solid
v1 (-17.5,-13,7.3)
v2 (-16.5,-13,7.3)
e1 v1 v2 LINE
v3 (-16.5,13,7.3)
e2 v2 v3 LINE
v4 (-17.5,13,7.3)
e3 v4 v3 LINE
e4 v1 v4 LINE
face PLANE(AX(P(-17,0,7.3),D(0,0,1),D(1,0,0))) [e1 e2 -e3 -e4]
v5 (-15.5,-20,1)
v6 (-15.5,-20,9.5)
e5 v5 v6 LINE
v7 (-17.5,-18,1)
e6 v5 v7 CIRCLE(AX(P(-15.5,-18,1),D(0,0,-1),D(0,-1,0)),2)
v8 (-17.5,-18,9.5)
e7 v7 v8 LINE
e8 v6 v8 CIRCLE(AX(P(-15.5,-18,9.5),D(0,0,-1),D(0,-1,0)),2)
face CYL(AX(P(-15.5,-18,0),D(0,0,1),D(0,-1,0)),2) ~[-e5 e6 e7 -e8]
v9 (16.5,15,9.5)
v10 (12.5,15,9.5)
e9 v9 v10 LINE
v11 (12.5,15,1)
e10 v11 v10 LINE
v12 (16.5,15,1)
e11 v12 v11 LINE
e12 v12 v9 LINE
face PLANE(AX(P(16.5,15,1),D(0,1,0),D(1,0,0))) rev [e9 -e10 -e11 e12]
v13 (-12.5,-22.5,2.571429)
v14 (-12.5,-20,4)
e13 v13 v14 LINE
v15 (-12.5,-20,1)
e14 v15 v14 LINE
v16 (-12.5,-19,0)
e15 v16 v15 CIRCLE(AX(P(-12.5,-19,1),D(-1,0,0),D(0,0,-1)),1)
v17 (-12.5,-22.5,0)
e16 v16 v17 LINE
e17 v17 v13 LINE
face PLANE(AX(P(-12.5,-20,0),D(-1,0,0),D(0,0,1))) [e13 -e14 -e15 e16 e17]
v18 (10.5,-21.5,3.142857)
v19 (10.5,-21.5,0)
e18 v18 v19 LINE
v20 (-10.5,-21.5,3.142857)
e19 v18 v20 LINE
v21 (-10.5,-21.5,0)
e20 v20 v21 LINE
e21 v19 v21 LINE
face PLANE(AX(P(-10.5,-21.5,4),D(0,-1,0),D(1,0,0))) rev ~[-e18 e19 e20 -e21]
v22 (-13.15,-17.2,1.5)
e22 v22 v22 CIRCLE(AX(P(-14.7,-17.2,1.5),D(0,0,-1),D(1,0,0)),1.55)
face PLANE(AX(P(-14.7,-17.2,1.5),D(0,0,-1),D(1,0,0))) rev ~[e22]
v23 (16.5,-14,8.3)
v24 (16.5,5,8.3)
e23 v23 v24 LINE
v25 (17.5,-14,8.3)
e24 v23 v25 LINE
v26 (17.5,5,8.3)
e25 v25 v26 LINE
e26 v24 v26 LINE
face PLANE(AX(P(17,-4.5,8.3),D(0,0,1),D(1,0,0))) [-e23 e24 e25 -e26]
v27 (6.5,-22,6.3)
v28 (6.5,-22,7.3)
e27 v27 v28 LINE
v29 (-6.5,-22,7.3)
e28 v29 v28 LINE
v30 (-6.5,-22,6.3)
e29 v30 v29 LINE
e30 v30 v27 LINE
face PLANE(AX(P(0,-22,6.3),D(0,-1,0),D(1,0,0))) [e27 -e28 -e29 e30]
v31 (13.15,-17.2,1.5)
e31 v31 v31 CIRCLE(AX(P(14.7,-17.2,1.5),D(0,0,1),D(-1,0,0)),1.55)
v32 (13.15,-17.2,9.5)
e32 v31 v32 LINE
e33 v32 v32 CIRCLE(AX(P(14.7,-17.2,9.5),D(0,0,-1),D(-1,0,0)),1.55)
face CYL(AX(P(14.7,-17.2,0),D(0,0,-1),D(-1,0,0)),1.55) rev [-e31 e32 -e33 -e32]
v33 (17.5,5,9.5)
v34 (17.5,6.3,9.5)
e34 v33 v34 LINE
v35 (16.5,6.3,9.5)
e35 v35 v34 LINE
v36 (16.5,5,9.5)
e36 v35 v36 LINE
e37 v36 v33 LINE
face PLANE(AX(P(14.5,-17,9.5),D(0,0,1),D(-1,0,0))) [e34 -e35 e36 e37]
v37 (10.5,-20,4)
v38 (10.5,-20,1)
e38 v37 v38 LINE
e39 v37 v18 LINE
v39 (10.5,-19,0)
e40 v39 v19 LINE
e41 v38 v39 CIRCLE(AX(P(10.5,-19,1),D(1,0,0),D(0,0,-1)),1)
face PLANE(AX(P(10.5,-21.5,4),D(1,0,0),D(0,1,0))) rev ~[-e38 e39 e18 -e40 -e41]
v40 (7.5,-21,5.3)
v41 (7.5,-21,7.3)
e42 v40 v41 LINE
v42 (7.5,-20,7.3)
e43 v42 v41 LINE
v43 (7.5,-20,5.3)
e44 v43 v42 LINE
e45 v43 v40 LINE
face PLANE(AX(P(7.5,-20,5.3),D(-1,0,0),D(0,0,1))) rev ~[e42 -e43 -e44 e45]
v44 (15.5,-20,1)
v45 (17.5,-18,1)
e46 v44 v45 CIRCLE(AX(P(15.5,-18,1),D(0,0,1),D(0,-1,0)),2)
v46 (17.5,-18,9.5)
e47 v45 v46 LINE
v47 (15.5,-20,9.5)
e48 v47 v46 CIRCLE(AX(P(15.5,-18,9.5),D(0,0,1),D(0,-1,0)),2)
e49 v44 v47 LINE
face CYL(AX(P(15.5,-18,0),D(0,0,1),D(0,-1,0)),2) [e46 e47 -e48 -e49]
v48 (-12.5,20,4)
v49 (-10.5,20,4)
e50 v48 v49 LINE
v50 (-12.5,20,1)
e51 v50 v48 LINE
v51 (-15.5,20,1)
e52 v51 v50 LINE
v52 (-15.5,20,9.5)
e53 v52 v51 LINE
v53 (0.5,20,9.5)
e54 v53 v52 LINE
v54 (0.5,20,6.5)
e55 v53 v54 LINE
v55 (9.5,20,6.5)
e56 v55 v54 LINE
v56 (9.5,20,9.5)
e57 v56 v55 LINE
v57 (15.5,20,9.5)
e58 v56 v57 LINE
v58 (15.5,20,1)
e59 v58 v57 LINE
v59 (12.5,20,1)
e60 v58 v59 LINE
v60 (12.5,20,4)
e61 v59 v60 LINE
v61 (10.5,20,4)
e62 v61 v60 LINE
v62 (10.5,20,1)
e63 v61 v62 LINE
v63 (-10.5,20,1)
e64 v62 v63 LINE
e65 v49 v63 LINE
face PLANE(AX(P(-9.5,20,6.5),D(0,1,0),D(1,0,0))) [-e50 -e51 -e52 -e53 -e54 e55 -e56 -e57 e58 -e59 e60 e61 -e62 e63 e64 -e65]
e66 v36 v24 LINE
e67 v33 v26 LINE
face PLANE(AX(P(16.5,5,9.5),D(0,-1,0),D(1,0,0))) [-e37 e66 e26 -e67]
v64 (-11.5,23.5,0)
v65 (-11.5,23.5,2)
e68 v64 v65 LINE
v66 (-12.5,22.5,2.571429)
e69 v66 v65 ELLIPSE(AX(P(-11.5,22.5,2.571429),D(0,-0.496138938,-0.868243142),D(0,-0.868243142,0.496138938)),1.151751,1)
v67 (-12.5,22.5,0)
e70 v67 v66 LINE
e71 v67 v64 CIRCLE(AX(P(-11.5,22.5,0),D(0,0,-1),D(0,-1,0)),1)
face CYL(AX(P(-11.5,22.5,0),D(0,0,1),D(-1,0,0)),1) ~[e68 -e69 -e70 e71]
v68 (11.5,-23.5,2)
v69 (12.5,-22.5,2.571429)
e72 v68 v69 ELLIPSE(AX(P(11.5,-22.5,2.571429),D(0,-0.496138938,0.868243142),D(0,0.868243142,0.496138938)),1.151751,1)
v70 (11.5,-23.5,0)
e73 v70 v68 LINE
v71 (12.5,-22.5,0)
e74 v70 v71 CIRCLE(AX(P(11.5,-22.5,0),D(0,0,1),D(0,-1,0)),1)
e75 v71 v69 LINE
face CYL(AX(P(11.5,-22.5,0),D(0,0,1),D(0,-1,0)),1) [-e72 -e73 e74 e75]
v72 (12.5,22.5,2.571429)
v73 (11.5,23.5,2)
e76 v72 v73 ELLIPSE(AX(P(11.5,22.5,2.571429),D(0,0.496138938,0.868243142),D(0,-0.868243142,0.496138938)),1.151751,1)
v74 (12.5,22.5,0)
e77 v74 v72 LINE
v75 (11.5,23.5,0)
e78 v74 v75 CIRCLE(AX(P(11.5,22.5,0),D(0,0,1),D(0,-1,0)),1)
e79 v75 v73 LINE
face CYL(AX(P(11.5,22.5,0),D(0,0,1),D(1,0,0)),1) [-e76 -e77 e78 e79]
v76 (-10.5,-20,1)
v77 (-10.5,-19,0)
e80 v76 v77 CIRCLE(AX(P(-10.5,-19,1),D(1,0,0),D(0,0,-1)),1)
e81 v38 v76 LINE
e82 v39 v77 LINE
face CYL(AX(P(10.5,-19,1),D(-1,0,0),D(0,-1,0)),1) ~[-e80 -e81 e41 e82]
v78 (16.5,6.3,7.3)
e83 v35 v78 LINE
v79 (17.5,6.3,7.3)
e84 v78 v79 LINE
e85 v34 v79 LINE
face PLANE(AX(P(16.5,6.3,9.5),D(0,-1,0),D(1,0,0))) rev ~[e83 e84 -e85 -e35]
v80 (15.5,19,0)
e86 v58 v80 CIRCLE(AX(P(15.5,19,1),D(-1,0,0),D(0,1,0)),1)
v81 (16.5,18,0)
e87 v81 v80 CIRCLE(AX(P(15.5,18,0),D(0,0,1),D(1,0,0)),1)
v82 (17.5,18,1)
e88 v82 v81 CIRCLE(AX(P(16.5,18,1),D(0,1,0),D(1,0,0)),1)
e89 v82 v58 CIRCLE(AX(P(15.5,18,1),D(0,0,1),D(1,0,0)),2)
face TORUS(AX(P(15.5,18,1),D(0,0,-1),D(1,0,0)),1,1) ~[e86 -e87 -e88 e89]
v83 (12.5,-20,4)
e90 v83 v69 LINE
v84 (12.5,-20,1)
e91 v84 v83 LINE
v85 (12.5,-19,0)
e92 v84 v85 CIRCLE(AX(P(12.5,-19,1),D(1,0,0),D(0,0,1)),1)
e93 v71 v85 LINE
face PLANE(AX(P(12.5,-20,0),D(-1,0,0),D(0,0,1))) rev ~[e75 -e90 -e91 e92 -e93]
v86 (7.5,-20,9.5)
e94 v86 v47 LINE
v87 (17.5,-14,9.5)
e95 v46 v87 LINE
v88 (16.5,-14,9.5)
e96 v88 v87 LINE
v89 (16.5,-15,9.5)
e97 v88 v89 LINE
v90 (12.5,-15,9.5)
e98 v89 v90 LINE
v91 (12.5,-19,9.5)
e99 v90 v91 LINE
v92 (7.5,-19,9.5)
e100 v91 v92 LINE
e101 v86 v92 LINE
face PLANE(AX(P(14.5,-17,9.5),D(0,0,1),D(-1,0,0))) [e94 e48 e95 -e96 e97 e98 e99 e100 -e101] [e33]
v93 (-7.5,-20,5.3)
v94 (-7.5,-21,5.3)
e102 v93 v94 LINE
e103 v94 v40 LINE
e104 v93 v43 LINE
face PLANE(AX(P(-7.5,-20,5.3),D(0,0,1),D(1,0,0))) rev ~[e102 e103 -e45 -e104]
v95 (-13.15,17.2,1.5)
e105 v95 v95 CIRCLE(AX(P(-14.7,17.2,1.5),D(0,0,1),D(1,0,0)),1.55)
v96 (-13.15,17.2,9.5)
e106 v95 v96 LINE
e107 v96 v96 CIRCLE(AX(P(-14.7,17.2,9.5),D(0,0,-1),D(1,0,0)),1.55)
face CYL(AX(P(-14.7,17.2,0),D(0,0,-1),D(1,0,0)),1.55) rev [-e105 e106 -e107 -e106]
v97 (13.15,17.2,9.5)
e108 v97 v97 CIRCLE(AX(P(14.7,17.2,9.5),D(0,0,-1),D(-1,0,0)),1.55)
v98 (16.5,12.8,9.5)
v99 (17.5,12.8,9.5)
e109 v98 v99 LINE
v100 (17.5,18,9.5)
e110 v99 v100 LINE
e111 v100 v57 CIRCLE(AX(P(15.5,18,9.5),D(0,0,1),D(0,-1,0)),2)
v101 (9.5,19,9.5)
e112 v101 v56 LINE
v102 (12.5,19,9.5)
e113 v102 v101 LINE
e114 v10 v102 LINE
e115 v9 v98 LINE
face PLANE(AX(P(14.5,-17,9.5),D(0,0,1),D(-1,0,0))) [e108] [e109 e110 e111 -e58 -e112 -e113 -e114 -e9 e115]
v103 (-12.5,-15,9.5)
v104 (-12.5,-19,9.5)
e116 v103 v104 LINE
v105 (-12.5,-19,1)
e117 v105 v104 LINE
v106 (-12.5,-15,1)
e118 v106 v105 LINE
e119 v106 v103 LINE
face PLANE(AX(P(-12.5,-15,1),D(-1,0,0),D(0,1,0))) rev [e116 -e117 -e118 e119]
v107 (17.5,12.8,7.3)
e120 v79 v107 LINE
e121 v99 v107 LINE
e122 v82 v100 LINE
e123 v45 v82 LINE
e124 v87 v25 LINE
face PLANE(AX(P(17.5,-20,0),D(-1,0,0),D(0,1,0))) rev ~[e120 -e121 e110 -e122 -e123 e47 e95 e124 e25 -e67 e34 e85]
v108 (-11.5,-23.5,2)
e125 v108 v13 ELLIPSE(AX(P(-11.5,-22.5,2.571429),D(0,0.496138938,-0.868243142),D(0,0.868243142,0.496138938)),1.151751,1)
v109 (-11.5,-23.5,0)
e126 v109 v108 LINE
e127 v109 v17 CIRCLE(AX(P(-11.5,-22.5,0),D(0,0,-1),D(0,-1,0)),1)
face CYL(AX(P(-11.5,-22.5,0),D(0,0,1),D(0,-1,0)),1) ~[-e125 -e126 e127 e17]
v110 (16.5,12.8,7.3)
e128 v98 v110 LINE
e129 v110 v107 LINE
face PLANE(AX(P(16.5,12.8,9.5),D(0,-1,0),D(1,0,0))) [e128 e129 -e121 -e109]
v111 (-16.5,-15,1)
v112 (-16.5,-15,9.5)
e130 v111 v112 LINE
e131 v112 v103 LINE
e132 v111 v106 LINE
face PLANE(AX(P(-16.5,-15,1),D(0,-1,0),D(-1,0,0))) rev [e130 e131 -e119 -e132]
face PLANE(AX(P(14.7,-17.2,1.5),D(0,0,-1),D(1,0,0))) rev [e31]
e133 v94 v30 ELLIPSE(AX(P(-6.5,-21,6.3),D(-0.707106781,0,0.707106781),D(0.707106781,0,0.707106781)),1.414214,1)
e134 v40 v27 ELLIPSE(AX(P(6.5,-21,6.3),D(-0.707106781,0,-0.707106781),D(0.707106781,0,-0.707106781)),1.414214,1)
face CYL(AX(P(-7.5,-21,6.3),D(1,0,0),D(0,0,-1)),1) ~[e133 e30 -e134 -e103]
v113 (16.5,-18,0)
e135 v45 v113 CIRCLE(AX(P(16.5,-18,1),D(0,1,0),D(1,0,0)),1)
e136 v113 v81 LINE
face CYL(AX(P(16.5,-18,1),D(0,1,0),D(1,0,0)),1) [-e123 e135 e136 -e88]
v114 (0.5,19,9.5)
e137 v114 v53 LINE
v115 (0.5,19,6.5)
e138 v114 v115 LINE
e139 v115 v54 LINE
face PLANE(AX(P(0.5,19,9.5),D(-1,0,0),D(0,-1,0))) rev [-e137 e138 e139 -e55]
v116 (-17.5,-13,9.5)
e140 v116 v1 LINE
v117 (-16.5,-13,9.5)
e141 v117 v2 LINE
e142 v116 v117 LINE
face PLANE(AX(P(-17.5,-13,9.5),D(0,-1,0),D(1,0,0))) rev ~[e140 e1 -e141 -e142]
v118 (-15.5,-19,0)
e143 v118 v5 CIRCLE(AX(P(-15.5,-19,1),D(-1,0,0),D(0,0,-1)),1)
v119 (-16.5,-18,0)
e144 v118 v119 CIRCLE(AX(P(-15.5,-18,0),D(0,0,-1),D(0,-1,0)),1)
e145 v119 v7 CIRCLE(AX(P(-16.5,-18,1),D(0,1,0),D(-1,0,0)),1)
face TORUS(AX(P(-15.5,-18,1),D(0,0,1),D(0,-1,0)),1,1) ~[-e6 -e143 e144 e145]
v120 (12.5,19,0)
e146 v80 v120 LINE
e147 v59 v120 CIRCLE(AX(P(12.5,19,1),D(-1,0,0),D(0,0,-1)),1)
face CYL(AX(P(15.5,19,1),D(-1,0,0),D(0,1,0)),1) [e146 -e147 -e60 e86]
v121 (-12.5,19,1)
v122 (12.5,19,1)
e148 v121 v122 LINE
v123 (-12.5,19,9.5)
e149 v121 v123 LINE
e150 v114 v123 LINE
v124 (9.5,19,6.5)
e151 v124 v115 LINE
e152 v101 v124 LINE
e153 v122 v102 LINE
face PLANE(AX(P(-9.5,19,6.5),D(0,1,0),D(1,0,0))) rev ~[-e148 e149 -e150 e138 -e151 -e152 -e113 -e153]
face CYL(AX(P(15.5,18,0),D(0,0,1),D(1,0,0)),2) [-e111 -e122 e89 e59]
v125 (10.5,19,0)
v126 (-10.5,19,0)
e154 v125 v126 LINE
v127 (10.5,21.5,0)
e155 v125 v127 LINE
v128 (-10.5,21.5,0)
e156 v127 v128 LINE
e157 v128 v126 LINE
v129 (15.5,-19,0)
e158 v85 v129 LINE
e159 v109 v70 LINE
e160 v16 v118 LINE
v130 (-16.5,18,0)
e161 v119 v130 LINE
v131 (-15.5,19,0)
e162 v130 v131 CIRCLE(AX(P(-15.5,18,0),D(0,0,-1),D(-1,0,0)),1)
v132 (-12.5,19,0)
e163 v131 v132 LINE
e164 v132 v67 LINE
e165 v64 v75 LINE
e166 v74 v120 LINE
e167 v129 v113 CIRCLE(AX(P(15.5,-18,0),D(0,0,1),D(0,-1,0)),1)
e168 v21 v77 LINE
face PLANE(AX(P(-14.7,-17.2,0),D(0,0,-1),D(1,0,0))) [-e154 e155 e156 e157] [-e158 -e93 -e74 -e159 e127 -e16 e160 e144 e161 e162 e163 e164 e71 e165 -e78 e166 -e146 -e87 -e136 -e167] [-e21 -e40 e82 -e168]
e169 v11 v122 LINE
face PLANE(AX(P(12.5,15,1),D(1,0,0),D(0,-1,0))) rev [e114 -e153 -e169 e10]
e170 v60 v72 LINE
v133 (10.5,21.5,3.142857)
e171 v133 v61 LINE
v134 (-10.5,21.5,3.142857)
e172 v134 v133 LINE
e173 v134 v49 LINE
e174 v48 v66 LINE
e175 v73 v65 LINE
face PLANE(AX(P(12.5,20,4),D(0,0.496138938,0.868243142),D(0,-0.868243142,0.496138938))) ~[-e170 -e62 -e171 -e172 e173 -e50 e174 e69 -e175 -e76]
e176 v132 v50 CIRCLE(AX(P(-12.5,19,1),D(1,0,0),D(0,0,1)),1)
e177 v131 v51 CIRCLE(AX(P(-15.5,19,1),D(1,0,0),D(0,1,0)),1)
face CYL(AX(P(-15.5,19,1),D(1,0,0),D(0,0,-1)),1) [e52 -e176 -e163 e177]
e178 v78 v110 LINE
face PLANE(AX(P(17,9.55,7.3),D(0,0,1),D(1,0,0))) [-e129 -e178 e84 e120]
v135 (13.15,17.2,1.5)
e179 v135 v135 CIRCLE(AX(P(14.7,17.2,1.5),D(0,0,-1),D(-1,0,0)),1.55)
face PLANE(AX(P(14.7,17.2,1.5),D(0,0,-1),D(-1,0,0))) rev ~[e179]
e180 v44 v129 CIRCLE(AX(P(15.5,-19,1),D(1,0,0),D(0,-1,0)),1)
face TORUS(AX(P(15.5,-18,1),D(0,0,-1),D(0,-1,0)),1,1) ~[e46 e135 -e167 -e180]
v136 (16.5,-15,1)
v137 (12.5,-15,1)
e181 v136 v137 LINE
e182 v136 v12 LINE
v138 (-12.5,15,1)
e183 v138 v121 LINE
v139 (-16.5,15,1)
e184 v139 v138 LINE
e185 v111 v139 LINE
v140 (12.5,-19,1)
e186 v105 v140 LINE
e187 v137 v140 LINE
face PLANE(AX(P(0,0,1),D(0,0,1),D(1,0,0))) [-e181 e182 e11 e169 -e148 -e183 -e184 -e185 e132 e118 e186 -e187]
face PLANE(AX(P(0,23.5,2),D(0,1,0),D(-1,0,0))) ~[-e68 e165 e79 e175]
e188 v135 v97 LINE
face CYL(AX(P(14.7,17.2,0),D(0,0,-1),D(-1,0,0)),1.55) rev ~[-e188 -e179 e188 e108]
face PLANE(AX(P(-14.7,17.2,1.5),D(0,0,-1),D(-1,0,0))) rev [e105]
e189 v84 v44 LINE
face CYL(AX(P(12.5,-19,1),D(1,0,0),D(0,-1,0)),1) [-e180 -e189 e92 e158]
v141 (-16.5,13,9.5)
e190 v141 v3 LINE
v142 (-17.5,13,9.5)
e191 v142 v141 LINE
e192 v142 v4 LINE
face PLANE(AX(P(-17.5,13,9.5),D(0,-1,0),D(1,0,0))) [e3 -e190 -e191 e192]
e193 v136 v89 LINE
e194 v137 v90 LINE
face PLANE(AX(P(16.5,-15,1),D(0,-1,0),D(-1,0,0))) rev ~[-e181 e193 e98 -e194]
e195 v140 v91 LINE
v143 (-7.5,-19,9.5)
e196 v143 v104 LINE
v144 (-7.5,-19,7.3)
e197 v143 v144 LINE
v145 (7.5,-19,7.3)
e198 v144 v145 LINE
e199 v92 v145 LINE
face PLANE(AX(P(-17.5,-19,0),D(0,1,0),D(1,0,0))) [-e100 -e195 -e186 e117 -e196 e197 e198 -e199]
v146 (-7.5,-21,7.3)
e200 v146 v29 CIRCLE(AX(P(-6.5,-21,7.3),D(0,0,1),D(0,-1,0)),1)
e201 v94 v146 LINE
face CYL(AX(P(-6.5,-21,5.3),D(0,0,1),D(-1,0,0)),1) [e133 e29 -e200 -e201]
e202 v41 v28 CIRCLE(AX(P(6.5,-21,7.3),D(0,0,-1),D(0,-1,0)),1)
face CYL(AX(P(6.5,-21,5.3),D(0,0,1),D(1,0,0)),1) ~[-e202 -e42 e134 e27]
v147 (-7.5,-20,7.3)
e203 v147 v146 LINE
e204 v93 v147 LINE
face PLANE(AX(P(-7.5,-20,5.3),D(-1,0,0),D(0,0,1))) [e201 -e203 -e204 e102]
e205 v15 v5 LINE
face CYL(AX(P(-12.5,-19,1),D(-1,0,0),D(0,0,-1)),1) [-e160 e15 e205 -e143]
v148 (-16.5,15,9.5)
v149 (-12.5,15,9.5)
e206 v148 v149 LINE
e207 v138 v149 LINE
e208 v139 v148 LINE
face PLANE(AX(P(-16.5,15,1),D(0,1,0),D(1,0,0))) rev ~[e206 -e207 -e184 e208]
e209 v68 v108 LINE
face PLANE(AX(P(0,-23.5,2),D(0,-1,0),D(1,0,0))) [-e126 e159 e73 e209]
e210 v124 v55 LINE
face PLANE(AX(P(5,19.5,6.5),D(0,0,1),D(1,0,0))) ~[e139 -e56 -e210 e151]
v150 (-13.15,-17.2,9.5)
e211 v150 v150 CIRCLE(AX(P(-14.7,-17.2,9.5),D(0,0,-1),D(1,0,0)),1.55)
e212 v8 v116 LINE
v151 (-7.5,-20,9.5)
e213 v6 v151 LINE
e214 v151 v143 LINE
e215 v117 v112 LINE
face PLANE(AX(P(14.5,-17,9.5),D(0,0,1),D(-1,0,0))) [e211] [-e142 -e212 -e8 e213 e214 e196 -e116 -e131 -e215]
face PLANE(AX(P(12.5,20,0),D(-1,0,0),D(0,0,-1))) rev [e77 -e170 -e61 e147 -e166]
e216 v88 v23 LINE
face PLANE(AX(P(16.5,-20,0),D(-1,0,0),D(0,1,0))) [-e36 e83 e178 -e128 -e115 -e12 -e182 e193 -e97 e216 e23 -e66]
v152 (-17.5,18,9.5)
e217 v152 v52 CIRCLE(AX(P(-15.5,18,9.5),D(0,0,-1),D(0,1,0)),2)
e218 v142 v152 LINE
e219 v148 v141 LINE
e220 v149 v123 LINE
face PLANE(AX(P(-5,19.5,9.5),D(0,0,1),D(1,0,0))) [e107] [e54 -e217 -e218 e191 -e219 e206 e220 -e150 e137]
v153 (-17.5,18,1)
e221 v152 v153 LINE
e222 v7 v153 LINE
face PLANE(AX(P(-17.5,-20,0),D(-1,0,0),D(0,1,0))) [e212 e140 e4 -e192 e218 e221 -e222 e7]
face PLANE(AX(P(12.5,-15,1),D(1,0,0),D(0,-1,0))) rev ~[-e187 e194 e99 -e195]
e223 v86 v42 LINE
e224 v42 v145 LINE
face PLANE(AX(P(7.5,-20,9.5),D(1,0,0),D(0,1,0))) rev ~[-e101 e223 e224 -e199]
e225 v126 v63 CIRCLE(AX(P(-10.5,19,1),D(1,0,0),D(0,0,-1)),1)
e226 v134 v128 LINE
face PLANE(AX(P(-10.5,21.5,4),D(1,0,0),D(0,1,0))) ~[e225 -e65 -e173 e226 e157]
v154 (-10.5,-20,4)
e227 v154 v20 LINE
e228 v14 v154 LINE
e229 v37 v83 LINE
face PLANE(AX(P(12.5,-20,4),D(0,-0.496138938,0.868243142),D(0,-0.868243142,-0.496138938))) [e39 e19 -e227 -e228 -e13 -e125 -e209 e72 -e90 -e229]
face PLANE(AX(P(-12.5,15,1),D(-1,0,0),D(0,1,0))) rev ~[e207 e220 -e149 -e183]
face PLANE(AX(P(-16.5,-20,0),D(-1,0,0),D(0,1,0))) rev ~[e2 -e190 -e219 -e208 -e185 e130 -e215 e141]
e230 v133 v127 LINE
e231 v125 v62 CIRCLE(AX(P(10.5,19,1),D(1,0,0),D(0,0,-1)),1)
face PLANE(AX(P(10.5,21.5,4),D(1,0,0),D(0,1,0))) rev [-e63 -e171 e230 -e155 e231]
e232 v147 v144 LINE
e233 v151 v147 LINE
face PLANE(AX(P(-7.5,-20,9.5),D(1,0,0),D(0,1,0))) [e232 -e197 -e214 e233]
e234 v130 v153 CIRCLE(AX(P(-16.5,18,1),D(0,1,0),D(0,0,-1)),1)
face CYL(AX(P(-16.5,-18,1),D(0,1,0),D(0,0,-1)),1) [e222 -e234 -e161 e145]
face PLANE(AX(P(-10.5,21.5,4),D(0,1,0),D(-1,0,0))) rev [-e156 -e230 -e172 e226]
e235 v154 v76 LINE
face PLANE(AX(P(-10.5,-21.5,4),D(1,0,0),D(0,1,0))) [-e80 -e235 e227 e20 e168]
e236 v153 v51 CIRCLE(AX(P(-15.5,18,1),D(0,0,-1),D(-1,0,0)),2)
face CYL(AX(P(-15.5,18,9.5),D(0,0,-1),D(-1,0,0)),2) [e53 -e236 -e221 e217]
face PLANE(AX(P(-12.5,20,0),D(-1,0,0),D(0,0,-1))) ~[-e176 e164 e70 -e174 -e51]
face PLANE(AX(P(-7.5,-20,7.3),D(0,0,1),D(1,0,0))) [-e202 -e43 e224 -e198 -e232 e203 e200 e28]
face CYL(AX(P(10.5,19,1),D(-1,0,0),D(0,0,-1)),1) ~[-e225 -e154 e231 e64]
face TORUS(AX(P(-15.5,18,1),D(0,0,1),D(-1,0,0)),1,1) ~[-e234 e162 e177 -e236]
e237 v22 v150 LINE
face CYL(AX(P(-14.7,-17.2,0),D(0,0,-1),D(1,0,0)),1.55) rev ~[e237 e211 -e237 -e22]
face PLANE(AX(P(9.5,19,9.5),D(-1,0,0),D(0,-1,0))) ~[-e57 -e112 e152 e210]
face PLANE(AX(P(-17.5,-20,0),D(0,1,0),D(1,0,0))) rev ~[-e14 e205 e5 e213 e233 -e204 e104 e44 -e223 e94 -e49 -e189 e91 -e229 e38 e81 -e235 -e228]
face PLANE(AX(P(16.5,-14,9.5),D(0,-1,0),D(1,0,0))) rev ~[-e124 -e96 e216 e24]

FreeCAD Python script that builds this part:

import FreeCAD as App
import Part
import Sketcher


def edges_at(feature, points):
    """Names of the edges that pass closest to the given points."""
    edges = feature.Shape.Edges
    near = lambda p: min(range(len(edges)), key=lambda i: edges[i].distToShape(Part.Vertex(*p))[0])
    return sorted({f"Edge{near(p) + 1}" for p in points})


def faces_at(feature, points):
    """Names of the faces that lie closest to the given points."""
    faces = feature.Shape.Faces
    near = lambda p: min(range(len(faces)), key=lambda i: faces[i].distToShape(Part.Vertex(*p))[0])
    return sorted({f"Face{near(p) + 1}" for p in points})

doc = App.newDocument("Part")
body = doc.addObject("PartDesign::Body", "Body")

sketch1 = body.newObject("Sketcher::SketchObject", "Sketch")
sketch1.AttachmentSupport = (doc.getObject("XY_Plane"), [""])
sketch1.MapMode = "FlatFace"
sketch1.addGeometry([
    Part.LineSegment(App.Vector(-18, 20, 0), App.Vector(-18, -20, 0)),
    Part.LineSegment(App.Vector(-18, -20, 0), App.Vector(18, -20, 0)),
    Part.LineSegment(App.Vector(18, -20, 0), App.Vector(18, 20, 0)),
    Part.LineSegment(App.Vector(18, 20, 0), App.Vector(-18, 20, 0)),
], False)
sketch1.addConstraint([
    Sketcher.Constraint("Coincident", 0, 2, 1, 1),
    Sketcher.Constraint("Coincident", 1, 2, 2, 1),
    Sketcher.Constraint("Coincident", 2, 2, 3, 1),
    Sketcher.Constraint("Coincident", 3, 2, 0, 1),
    Sketcher.Constraint("Vertical", 0),
    Sketcher.Constraint("Horizontal", 1),
    Sketcher.Constraint("Vertical", 2),
    Sketcher.Constraint("Horizontal", 3),
    Sketcher.Constraint("Symmetric", 0, 2, 2, 2, -1, 1),
    Sketcher.Constraint("DistanceX", 1, 1, 1, 2, 35.0),
    Sketcher.Constraint("DistanceY", 0, 2, 0, 1, 40.0),
])
pad1 = body.newObject("PartDesign::Pad", "Pad")
pad1.Profile = sketch1
pad1.Length = 9.5
doc.recompute()

thickness = body.newObject("PartDesign::Thickness", "Thickness")
thickness.Base = (pad1, faces_at(pad1, [(0, 0, 9.5)]))
thickness.Value = 1
thickness.Reversed = True
thickness.Join = "Intersection"

sketch2 = body.newObject("Sketcher::SketchObject", "Sketch001")
sketch2.AttachmentSupport = (doc.getObject("XY_Plane"), [""])
sketch2.MapMode = "FlatFace"
sketch2.AttachmentOffset = App.Placement(App.Vector(0, 0, 1), App.Rotation())
sketch2.addGeometry([
    Part.LineSegment(App.Vector(-16.5, 19, 0), App.Vector(-16.5, 15, 0)),
    Part.LineSegment(App.Vector(-16.5, 15, 0), App.Vector(-12.5, 15, 0)),
    Part.LineSegment(App.Vector(-12.5, 15, 0), App.Vector(-12.5, 19, 0)),
    Part.LineSegment(App.Vector(-12.5, 19, 0), App.Vector(-16.5, 19, 0)),
], False)
sketch2.addConstraint([
    Sketcher.Constraint("Coincident", 0, 2, 1, 1),
    Sketcher.Constraint("Coincident", 1, 2, 2, 1),
    Sketcher.Constraint("Coincident", 2, 2, 3, 1),
    Sketcher.Constraint("Coincident", 3, 2, 0, 1),
    Sketcher.Constraint("Vertical", 0),
    Sketcher.Constraint("Horizontal", 1),
    Sketcher.Constraint("Vertical", 2),
    Sketcher.Constraint("Horizontal", 3),
    Sketcher.Constraint("Equal", 3, 0),
    Sketcher.Constraint("DistanceX", 1, 1, 1, 2, 4.0),
    Sketcher.Constraint("DistanceY", -1, 1, 0, 2, 15.0),
    Sketcher.Constraint("DistanceX", 0, 2, -1, 1, 16.5),
])
pad2 = body.newObject("PartDesign::Pad", "Pad001")
pad2.Profile = sketch2
pad2.Length = 8.5
doc.recompute()

mirrored = body.newObject("PartDesign::Mirrored", "Mirrored")
mirrored.Originals = [pad2]
mirrored.MirrorPlane = (doc.getObject("XZ_Plane"), [""])
body.Tip = mirrored
doc.recompute()

mirrored2 = body.newObject("PartDesign::Mirrored", "Mirrored001")
mirrored2.Originals = [pad2]
mirrored2.MirrorPlane = (doc.getObject("YZ_Plane"), [""])
body.Tip = mirrored2

sketch3 = body.newObject("Sketcher::SketchObject", "Sketch002")
sketch3.AttachmentSupport = (doc.getObject("XY_Plane"), [""])
sketch3.MapMode = "FlatFace"
sketch3.AttachmentOffset = App.Placement(App.Vector(0, 0, 1), App.Rotation())
sketch3.addGeometry([
    Part.LineSegment(App.Vector(16.5, -19, 0), App.Vector(16.5, -15, 0)),
    Part.LineSegment(App.Vector(16.5, -15, 0), App.Vector(12.5, -15, 0)),
    Part.LineSegment(App.Vector(12.5, -15, 0), App.Vector(12.5, -19, 0)),
    Part.LineSegment(App.Vector(12.5, -19, 0), App.Vector(16.5, -19, 0)),
], False)
sketch3.addConstraint([
    Sketcher.Constraint("Coincident", 0, 2, 1, 1),
    Sketcher.Constraint("Coincident", 1, 2, 2, 1),
    Sketcher.Constraint("Coincident", 2, 2, 3, 1),
    Sketcher.Constraint("Coincident", 3, 2, 0, 1),
    Sketcher.Constraint("Vertical", 0),
    Sketcher.Constraint("Horizontal", 1),
    Sketcher.Constraint("Vertical", 2),
    Sketcher.Constraint("Horizontal", 3),
    Sketcher.Constraint("Equal", 3, 0),
    Sketcher.Constraint("DistanceX", 1, 2, 1, 1, 4.0),
    Sketcher.Constraint("DistanceY", 0, 2, -1, 1, 15.0),
    Sketcher.Constraint("DistanceX", -1, 1, 0, 2, 16.5),
])
pad3 = body.newObject("PartDesign::Pad", "Pad002")
pad3.Profile = sketch3
pad3.Length = 8.5

sketch4 = body.newObject("Sketcher::SketchObject", "Sketch003")
sketch4.AttachmentSupport = (doc.getObject("XY_Plane"), [""])
sketch4.MapMode = "FlatFace"
sketch4.addGeometry(Part.Circle(App.Vector(14.7, 17.2, 0), App.Vector(0, 0, 1), 1.6), False)
sketch4.addConstraint([
    Sketcher.Constraint("Diameter", 0, 3.1),
    Sketcher.Constraint("DistanceX", -1, 1, 0, 3, 14.7),
    Sketcher.Constraint("DistanceY", -1, 1, 0, 3, 17.2),
])
pocket1 = body.newObject("PartDesign::Pocket", "Pocket")
pocket1.Profile = sketch4
pocket1.Length = 12
pocket1.Reversed = True
doc.recompute()

mirrored3 = body.newObject("PartDesign::Mirrored", "Mirrored002")
mirrored3.Originals = [pocket1]
mirrored3.MirrorPlane = (doc.getObject("XZ_Plane"), [""])
body.Tip = mirrored3
doc.recompute()

mirrored4 = body.newObject("PartDesign::Mirrored", "Mirrored003")
mirrored4.Originals = [pocket1]
mirrored4.MirrorPlane = (doc.getObject("YZ_Plane"), [""])
body.Tip = mirrored4

sketch5 = body.newObject("Sketcher::SketchObject", "Sketch004")
sketch5.AttachmentSupport = (doc.getObject("XY_Plane"), [""])
sketch5.MapMode = "FlatFace"
sketch5.addGeometry(Part.Circle(App.Vector(-14.7, -17.2, 0), App.Vector(0, 0, 1), 1.6), False)
sketch5.addConstraint([
    Sketcher.Constraint("Diameter", 0, 3.1),
    Sketcher.Constraint("DistanceX", 0, 3, -1, 1, 14.7),
    Sketcher.Constraint("DistanceY", 0, 3, -1, 1, 17.2),
])
pocket2 = body.newObject("PartDesign::Pocket", "Pocket001")
pocket2.Profile = sketch5
pocket2.Length = 12
pocket2.Reversed = True

sketch6 = body.newObject("Sketcher::SketchObject", "Sketch005")
sketch6.AttachmentSupport = (doc.getObject("XY_Plane"), [""])
sketch6.MapMode = "FlatFace"
sketch6.addGeometry(Part.Circle(App.Vector(14.7, 17.2, 0), App.Vector(0, 0, 1), 1.6), False)
sketch6.addConstraint([
    Sketcher.Constraint("Diameter", 0, 3.1),
    Sketcher.Constraint("DistanceX", -1, 1, 0, 3, 14.7),
    Sketcher.Constraint("DistanceY", -1, 1, 0, 3, 17.2),
])
pad4 = body.newObject("PartDesign::Pad", "Pad003")
pad4.Profile = sketch6
pad4.Length = 1.5
doc.recompute()

mirrored5 = body.newObject("PartDesign::Mirrored", "Mirrored004")
mirrored5.Originals = [pad4]
mirrored5.MirrorPlane = (doc.getObject("XZ_Plane"), [""])
body.Tip = mirrored5
doc.recompute()

mirrored6 = body.newObject("PartDesign::Mirrored", "Mirrored005")
mirrored6.Originals = [pad4]
mirrored6.MirrorPlane = (doc.getObject("YZ_Plane"), [""])
body.Tip = mirrored6

sketch7 = body.newObject("Sketcher::SketchObject", "Sketch006")
sketch7.AttachmentSupport = (doc.getObject("XY_Plane"), [""])
sketch7.MapMode = "FlatFace"
sketch7.addGeometry(Part.Circle(App.Vector(-14.7, -17.2, 0), App.Vector(0, 0, 1), 1.6), False)
sketch7.addConstraint([
    Sketcher.Constraint("Diameter", 0, 3.1),
    Sketcher.Constraint("DistanceX", 0, 3, -1, 1, 14.7),
    Sketcher.Constraint("DistanceY", 0, 3, -1, 1, 17.2),
])
pad5 = body.newObject("PartDesign::Pad", "Pad004")
pad5.Profile = sketch7
pad5.Length = 1.5

sketch8 = body.newObject("Sketcher::SketchObject", "Sketch007")
sketch8.AttachmentSupport = (doc.getObject("XY_Plane"), [""])
sketch8.MapMode = "FlatFace"
sketch8.AttachmentOffset = App.Placement(App.Vector(0, 0, 9.5), App.Rotation())
sketch8.addGeometry([
    Part.LineSegment(App.Vector(-9.5, 20, 0), App.Vector(-9.5, 19, 0)),
    Part.LineSegment(App.Vector(-9.5, 19, 0), App.Vector(-0.5, 19, 0)),
    Part.LineSegment(App.Vector(-0.5, 19, 0), App.Vector(-0.5, 20, 0)),
    Part.LineSegment(App.Vector(-0.5, 20, 0), App.Vector(-9.5, 20, 0)),
], False)
sketch8.addConstraint([
    Sketcher.Constraint("Coincident", 0, 2, 1, 1),
    Sketcher.Constraint("Coincident", 1, 2, 2, 1),
    Sketcher.Constraint("Coincident", 2, 2, 3, 1),
    Sketcher.Constraint("Coincident", 3, 2, 0, 1),
    Sketcher.Constraint("Vertical", 0),
    Sketcher.Constraint("Horizontal", 1),
    Sketcher.Constraint("Vertical", 2),
    Sketcher.Constraint("Horizontal", 3),
    Sketcher.Constraint("DistanceX", 1, 1, 1, 2, 9.0),
    Sketcher.Constraint("DistanceY", 0, 2, 0, 1, 1.0),
    Sketcher.Constraint("DistanceY", -1, 1, 0, 2, 19.0),
    Sketcher.Constraint("DistanceX", 0, 2, -1, 1, 9.5),
])
pocket3 = body.newObject("PartDesign::Pocket", "Pocket002")
pocket3.Profile = sketch8
pocket3.Length = 3

sketch9 = body.newObject("Sketcher::SketchObject", "Sketch008")
sketch9.AttachmentSupport = (doc.getObject("XY_Plane"), [""])
sketch9.MapMode = "FlatFace"
sketch9.AttachmentOffset = App.Placement(App.Vector(0, 0, 9.5), App.Rotation())
sketch9.addGeometry([
    Part.LineSegment(App.Vector(-17.5, 13, 0), App.Vector(-17.5, -13, 0)),
    Part.LineSegment(App.Vector(-17.5, -13, 0), App.Vector(-16.5, -13, 0)),
    Part.LineSegment(App.Vector(-16.5, -13, 0), App.Vector(-16.5, 13, 0)),
    Part.LineSegment(App.Vector(-16.5, 13, 0), App.Vector(-17.5, 13, 0)),
], False)
sketch9.addConstraint([
    Sketcher.Constraint("Coincident", 0, 2, 1, 1),
    Sketcher.Constraint("Coincident", 1, 2, 2, 1),
    Sketcher.Constraint("Coincident", 2, 2, 3, 1),
    Sketcher.Constraint("Coincident", 3, 2, 0, 1),
    Sketcher.Constraint("Vertical", 0),
    Sketcher.Constraint("Horizontal", 1),
    Sketcher.Constraint("Vertical", 2),
    Sketcher.Constraint("Horizontal", 3),
    Sketcher.Constraint("DistanceX", 1, 1, 1, 2, 1.0),
    Sketcher.Constraint("DistanceY", 0, 2, 0, 1, 26.0),
    Sketcher.Constraint("DistanceY", 0, 2, -1, 1, 13.0),
    Sketcher.Constraint("DistanceX", 0, 2, -1, 1, 17.5),
])
pocket4 = body.newObject("PartDesign::Pocket", "Pocket003")
pocket4.Profile = sketch9
pocket4.Length = 2.2

sketch10 = body.newObject("Sketcher::SketchObject", "Sketch009")
sketch10.AttachmentSupport = (doc.getObject("XY_Plane"), [""])
sketch10.MapMode = "FlatFace"
sketch10.AttachmentOffset = App.Placement(App.Vector(0, 0, 9.5), App.Rotation())
sketch10.addGeometry([
    Part.LineSegment(App.Vector(16.5, 5, 0), App.Vector(16.5, -14, 0)),
    Part.LineSegment(App.Vector(16.5, -14, 0), App.Vector(17.5, -14, 0)),
    Part.LineSegment(App.Vector(17.5, -14, 0), App.Vector(17.5, 5, 0)),
    Part.LineSegment(App.Vector(17.5, 5, 0), App.Vector(16.5, 5, 0)),
], False)
sketch10.addConstraint([
    Sketcher.Constraint("Coincident", 0, 2, 1, 1),
    Sketcher.Constraint("Coincident", 1, 2, 2, 1),
    Sketcher.Constraint("Coincident", 2, 2, 3, 1),
    Sketcher.Constraint("Coincident", 3, 2, 0, 1),
    Sketcher.Constraint("Vertical", 0),
    Sketcher.Constraint("Horizontal", 1),
    Sketcher.Constraint("Vertical", 2),
    Sketcher.Constraint("Horizontal", 3),
    Sketcher.Constraint("DistanceX", 1, 1, 1, 2, 1.0),
    Sketcher.Constraint("DistanceY", 0, 2, 0, 1, 19.0),
    Sketcher.Constraint("DistanceY", 0, 2, -1, 1, 14.0),
    Sketcher.Constraint("DistanceX", -1, 1, 0, 2, 16.5),
])
pocket5 = body.newObject("PartDesign::Pocket", "Pocket004")
pocket5.Profile = sketch10
pocket5.Length = 1.2

sketch11 = body.newObject("Sketcher::SketchObject", "Sketch010")
sketch11.AttachmentSupport = (doc.getObject("XY_Plane"), [""])
sketch11.MapMode = "FlatFace"
sketch11.AttachmentOffset = App.Placement(App.Vector(0, 0, 9.5), App.Rotation())
sketch11.addGeometry([
    Part.LineSegment(App.Vector(16.5, 12.8, 0), App.Vector(16.5, 6.3, 0)),
    Part.LineSegment(App.Vector(16.5, 6.3, 0), App.Vector(17.5, 6.3, 0)),
    Part.LineSegment(App.Vector(17.5, 6.3, 0), App.Vector(17.5, 12.8, 0)),
    Part.LineSegment(App.Vector(17.5, 12.8, 0), App.Vector(16.5, 12.8, 0)),
], False)
sketch11.addConstraint([
    Sketcher.Constraint("Coincident", 0, 2, 1, 1),
    Sketcher.Constraint("Coincident", 1, 2, 2, 1),
    Sketcher.Constraint("Coincident", 2, 2, 3, 1),
    Sketcher.Constraint("Coincident", 3, 2, 0, 1),
    Sketcher.Constraint("Vertical", 0),
    Sketcher.Constraint("Horizontal", 1),
    Sketcher.Constraint("Vertical", 2),
    Sketcher.Constraint("Horizontal", 3),
    Sketcher.Constraint("DistanceX", 1, 1, 1, 2, 1.0),
    Sketcher.Constraint("DistanceY", 0, 2, 0, 1, 6.5),
    Sketcher.Constraint("DistanceX", -1, 1, 0, 2, 16.5),
    Sketcher.Constraint("DistanceY", -1, 1, 0, 2, 6.3),
])
pocket6 = body.newObject("PartDesign::Pocket", "Pocket005")
pocket6.Profile = sketch11
pocket6.Length = 2.2

sketch12 = body.newObject("Sketcher::SketchObject", "Sketch011")
sketch12.AttachmentSupport = (doc.getObject("XY_Plane"), [""])
sketch12.MapMode = "FlatFace"
sketch12.AttachmentOffset = App.Placement(App.Vector(0, 0, 9.5), App.Rotation())
sketch12.addGeometry([
    Part.LineSegment(App.Vector(-7.5, -19, 0), App.Vector(-7.5, -20, 0)),
    Part.LineSegment(App.Vector(-7.5, -20, 0), App.Vector(7.5, -20, 0)),
    Part.LineSegment(App.Vector(7.5, -20, 0), App.Vector(7.5, -19, 0)),
    Part.LineSegment(App.Vector(7.5, -19, 0), App.Vector(-7.5, -19, 0)),
], False)
sketch12.addConstraint([
    Sketcher.Constraint("Coincident", 0, 2, 1, 1),
    Sketcher.Constraint("Coincident", 1, 2, 2, 1),
    Sketcher.Constraint("Coincident", 2, 2, 3, 1),
    Sketcher.Constraint("Coincident", 3, 2, 0, 1),
    Sketcher.Constraint("Vertical", 0),
    Sketcher.Constraint("Horizontal", 1),
    Sketcher.Constraint("Vertical", 2),
    Sketcher.Constraint("Horizontal", 3),
    Sketcher.Constraint("DistanceX", 1, 1, 1, 2, 15.0),
    Sketcher.Constraint("DistanceY", 0, 2, 0, 1, 1.0),
    Sketcher.Constraint("DistanceY", 0, 2, -1, 1, 20.0),
    Sketcher.Constraint("DistanceX", 0, 2, -1, 1, 7.5),
])
pocket7 = body.newObject("PartDesign::Pocket", "Pocket006")
pocket7.Profile = sketch12
pocket7.Length = 2.2

sketch13 = body.newObject("Sketcher::SketchObject", "Sketch012")
sketch13.AttachmentSupport = (doc.getObject("XZ_Plane"), [""])
sketch13.MapMode = "FlatFace"
sketch13.AttachmentOffset = App.Placement(App.Vector(0, 0, 20), App.Rotation())
sketch13.addGeometry([
    Part.LineSegment(App.Vector(-12.5, 4, 0), App.Vector(-12.5, 0, 0)),
    Part.LineSegment(App.Vector(-12.5, 0, 0), App.Vector(12.5, 0, 0)),
    Part.LineSegment(App.Vector(12.5, 0, 0), App.Vector(12.5, 4, 0)),
    Part.LineSegment(App.Vector(12.5, 4, 0), App.Vector(-12.5, 4, 0)),
], False)
sketch13.addConstraint([
    Sketcher.Constraint("Coincident", 0, 2, 1, 1),
    Sketcher.Constraint("Coincident", 1, 2, 2, 1),
    Sketcher.Constraint("Coincident", 2, 2, 3, 1),
    Sketcher.Constraint("Coincident", 3, 2, 0, 1),
    Sketcher.Constraint("Vertical", 0),
    Sketcher.Constraint("Horizontal", 1),
    Sketcher.Constraint("Vertical", 2),
    Sketcher.Constraint("Horizontal", 3),
    Sketcher.Constraint("Symmetric", 0, 2, 1, 2, -1, 1),
    Sketcher.Constraint("DistanceX", 1, 1, 1, 2, 25.0),
    Sketcher.Constraint("DistanceY", 0, 2, 0, 1, 4.0),
])
pad6 = body.newObject("PartDesign::Pad", "Pad005")
pad6.Profile = sketch13
pad6.Length = 3.5

sketch14 = body.newObject("Sketcher::SketchObject", "Sketch013")
sketch14.AttachmentSupport = (doc.getObject("XY_Plane"), [""])
sketch14.MapMode = "FlatFace"
sketch14.AttachmentOffset = App.Placement(App.Vector(0, 0, 4), App.Rotation())
sketch14.addGeometry([
    Part.LineSegment(App.Vector(-10.5, -20, 0), App.Vector(-10.5, -21.5, 0)),
    Part.LineSegment(App.Vector(-10.5, -21.5, 0), App.Vector(10.5, -21.5, 0)),
    Part.LineSegment(App.Vector(10.5, -21.5, 0), App.Vector(10.5, -20, 0)),
    Part.LineSegment(App.Vector(10.5, -20, 0), App.Vector(-10.5, -20, 0)),
], False)
sketch14.addConstraint([
    Sketcher.Constraint("Coincident", 0, 2, 1, 1),
    Sketcher.Constraint("Coincident", 1, 2, 2, 1),
    Sketcher.Constraint("Coincident", 2, 2, 3, 1),
    Sketcher.Constraint("Coincident", 3, 2, 0, 1),
    Sketcher.Constraint("Vertical", 0),
    Sketcher.Constraint("Horizontal", 1),
    Sketcher.Constraint("Vertical", 2),
    Sketcher.Constraint("Horizontal", 3),
    Sketcher.Constraint("DistanceX", 1, 1, 1, 2, 21.0),
    Sketcher.Constraint("DistanceY", 0, 2, 0, 1, 1.5),
    Sketcher.Constraint("DistanceY", 2, 2, -1, 1, 20.0),
    Sketcher.Constraint("DistanceX", 0, 2, -1, 1, 10.5),
])
pocket8 = body.newObject("PartDesign::Pocket", "Pocket007")
pocket8.Profile = sketch14
pocket8.Length = 5

sketch15 = body.newObject("Sketcher::SketchObject", "Sketch014")
sketch15.AttachmentSupport = (doc.getObject("YZ_Plane"), [""])
sketch15.MapMode = "FlatFace"
sketch15.AttachmentOffset = App.Placement(App.Vector(0, 0, 12.5), App.Rotation())
sketch15.addGeometry([
    Part.LineSegment(App.Vector(-23.5, 4, 0), App.Vector(-23.5, 2, 0)),
    Part.LineSegment(App.Vector(-23.5, 2, 0), App.Vector(-20, 4, 0)),
    Part.LineSegment(App.Vector(-20, 4, 0), App.Vector(-23.5, 4, 0)),
], False)
sketch15.addConstraint([
    Sketcher.Constraint("Coincident", 0, 2, 1, 1),
    Sketcher.Constraint("Coincident", 1, 2, 2, 1),
    Sketcher.Constraint("Coincident", 2, 2, 0, 1),
    Sketcher.Constraint("Vertical", 0),
    Sketcher.Constraint("Horizontal", 2),
    Sketcher.Constraint("DistanceY", 0, 2, 0, 1, 2.0),
    Sketcher.Constraint("DistanceX", 2, 2, 2, 1, 3.5),
    Sketcher.Constraint("DistanceY", -1, 1, 0, 2, 2.0),
    Sketcher.Constraint("DistanceX", 1, 2, -1, 1, 20.0),
])
pocket9 = body.newObject("PartDesign::Pocket", "Pocket008")
pocket9.Profile = sketch15
pocket9.Length = 50
doc.recompute()

mirrored7 = body.newObject("PartDesign::Mirrored", "Mirrored006")
mirrored7.Originals = [pad6, pocket8, pocket9]
mirrored7.MirrorPlane = (doc.getObject("XZ_Plane"), [""])
body.Tip = mirrored7

sketch16 = body.newObject("Sketcher::SketchObject", "Sketch015")
sketch16.AttachmentSupport = (doc.getObject("XZ_Plane"), [""])
sketch16.MapMode = "FlatFace"
sketch16.AttachmentOffset = App.Placement(App.Vector(0, 0, 20), App.Rotation())
sketch16.addGeometry([
    Part.LineSegment(App.Vector(-7.5, 7.3, 0), App.Vector(-7.5, 5.3, 0)),
    Part.LineSegment(App.Vector(-7.5, 5.3, 0), App.Vector(7.5, 5.3, 0)),
    Part.LineSegment(App.Vector(7.5, 5.3, 0), App.Vector(7.5, 7.3, 0)),
    Part.LineSegment(App.Vector(7.5, 7.3, 0), App.Vector(-7.5, 7.3, 0)),
], False)
sketch16.addConstraint([
    Sketcher.Constraint("Coincident", 0, 2, 1, 1),
    Sketcher.Constraint("Coincident", 1, 2, 2, 1),
    Sketcher.Constraint("Coincident", 2, 2, 3, 1),
    Sketcher.Constraint("Coincident", 3, 2, 0, 1),
    Sketcher.Constraint("Vertical", 0),
    Sketcher.Constraint("Horizontal", 1),
    Sketcher.Constraint("Vertical", 2),
    Sketcher.Constraint("Horizontal", 3),
    Sketcher.Constraint("DistanceX", 1, 1, 1, 2, 15.0),
    Sketcher.Constraint("DistanceY", 0, 2, 0, 1, 2.0),
    Sketcher.Constraint("DistanceX", 0, 2, -1, 1, 7.5),
    Sketcher.Constraint("DistanceY", -1, 1, 0, 2, 5.3),
])
pad7 = body.newObject("PartDesign::Pad", "Pad006")
pad7.Profile = sketch16
pad7.Length = 2
doc.recompute()

fillet = body.newObject("PartDesign::Fillet", "Fillet")
fillet.Base = (pad7, edges_at(pad7, [
    (-17.5, 20, 4.75),
    (17.5, 20, 4.75),
    (17.5, -20, 4.75),
    (-17.5, -20, 4.75),
]))
fillet.Radius = 2
doc.recompute()

fillet2 = body.newObject("PartDesign::Fillet", "Fillet001")
fillet2.Base = (fillet, edges_at(fillet, [
    (14, -20, 0),
    (0, -20, 0),
    (-14, 20, 0),
    (0, 20, 0),
    (-17.5, 0, 0),
    (14, 20, 0),
    (17.5, 0, 0),
    (-14, -20, 0),
    (-16.914, -19.414, 0),
    (16.914, -19.414, 0),
    (16.914, 19.414, 0),
    (-16.914, 19.414, 0),
]))
fillet2.Radius = 1
doc.recompute()

fillet3 = body.newObject("PartDesign::Fillet", "Fillet002")
fillet3.Base = (fillet2, edges_at(fillet2, [
    (12.5, -23.5, 1),
    (-12.5, -23.5, 1),
    (12.5, 23.5, 1),
    (-12.5, 23.5, 1),
]))
fillet3.Radius = 1
doc.recompute()

fillet4 = body.newObject("PartDesign::Fillet", "Fillet003")
fillet4.Base = (fillet3, edges_at(fillet3, [(-7.5, -22, 6.3), (0, -22, 5.3), (7.5, -22, 6.3)]))
fillet4.Radius = 1
doc.recompute()

mirrored8 = body.newObject("PartDesign::Mirrored", "Mirrored007")
mirrored8.Originals = [pocket3]
mirrored8.MirrorPlane = (doc.getObject("YZ_Plane"), [""])
body.Tip = mirrored8

sketch17 = body.newObject("Sketcher::SketchObject", "Sketch016")
sketch17.AttachmentSupport = (doc.getObject("XY_Plane"), [""])
sketch17.MapMode = "FlatFace"
sketch17.AttachmentOffset = App.Placement(App.Vector(0, 0, 6.5), App.Rotation())
sketch17.addGeometry([
    Part.LineSegment(App.Vector(-9.5, 20, 0), App.Vector(-9.5, 19, 0)),
    Part.LineSegment(App.Vector(-9.5, 19, 0), App.Vector(-0.5, 19, 0)),
    Part.LineSegment(App.Vector(-0.5, 19, 0), App.Vector(-0.5, 20, 0)),
    Part.LineSegment(App.Vector(-0.5, 20, 0), App.Vector(-9.5, 20, 0)),
], False)
sketch17.addConstraint([
    Sketcher.Constraint("Coincident", 0, 2, 1, 1),
    Sketcher.Constraint("Coincident", 1, 2, 2, 1),
    Sketcher.Constraint("Coincident", 2, 2, 3, 1),
    Sketcher.Constraint("Coincident", 3, 2, 0, 1),
    Sketcher.Constraint("Vertical", 0),
    Sketcher.Constraint("Horizontal", 1),
    Sketcher.Constraint("Vertical", 2),
    Sketcher.Constraint("Horizontal", 3),
    Sketcher.Constraint("DistanceX", 1, 1, 1, 2, 9.0),
    Sketcher.Constraint("DistanceY", 0, 2, 0, 1, 1.0),
    Sketcher.Constraint("DistanceY", -1, 1, 0, 2, 19.0),
    Sketcher.Constraint("DistanceX", 0, 2, -1, 1, 9.5),
])
pad8 = body.newObject("PartDesign::Pad", "Pad007")
pad8.Profile = sketch17
pad8.Length = 3

doc.recompute()
